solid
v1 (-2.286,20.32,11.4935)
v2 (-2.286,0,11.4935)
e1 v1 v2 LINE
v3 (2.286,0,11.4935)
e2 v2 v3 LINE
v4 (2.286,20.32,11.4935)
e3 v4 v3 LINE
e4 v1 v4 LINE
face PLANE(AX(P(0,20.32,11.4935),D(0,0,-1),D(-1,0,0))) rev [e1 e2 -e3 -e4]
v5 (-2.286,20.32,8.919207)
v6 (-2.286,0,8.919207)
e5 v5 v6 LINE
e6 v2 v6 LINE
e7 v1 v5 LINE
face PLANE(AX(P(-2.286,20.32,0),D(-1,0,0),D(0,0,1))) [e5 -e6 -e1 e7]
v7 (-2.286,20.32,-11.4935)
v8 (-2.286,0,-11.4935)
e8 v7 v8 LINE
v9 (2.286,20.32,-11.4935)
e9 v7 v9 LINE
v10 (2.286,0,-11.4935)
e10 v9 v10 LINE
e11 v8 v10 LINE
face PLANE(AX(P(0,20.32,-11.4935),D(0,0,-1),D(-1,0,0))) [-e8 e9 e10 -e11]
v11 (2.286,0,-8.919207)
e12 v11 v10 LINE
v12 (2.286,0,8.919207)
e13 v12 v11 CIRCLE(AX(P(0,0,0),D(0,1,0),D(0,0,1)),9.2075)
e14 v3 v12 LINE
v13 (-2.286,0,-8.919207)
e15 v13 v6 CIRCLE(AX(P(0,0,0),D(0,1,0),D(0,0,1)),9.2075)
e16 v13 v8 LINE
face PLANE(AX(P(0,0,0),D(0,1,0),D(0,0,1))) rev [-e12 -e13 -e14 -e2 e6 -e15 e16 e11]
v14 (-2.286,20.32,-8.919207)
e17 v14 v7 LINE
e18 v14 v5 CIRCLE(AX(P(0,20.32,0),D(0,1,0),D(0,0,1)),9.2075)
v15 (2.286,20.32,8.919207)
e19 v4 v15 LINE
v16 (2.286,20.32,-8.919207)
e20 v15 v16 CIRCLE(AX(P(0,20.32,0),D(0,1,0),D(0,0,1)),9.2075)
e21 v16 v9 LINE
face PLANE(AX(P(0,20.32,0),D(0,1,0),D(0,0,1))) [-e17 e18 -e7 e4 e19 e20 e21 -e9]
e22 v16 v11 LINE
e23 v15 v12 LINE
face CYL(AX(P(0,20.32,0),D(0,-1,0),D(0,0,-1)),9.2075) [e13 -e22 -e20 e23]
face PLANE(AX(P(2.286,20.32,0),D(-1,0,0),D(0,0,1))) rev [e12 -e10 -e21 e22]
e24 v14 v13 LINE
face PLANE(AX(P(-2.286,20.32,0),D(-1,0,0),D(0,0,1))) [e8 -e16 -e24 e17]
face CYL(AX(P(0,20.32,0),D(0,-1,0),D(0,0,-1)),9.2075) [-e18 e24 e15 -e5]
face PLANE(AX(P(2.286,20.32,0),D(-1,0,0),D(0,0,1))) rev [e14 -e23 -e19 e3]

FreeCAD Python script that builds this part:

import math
import FreeCAD as App
import Part
import Sketcher
Q = App.Units.Quantity

doc = App.newDocument("Part")
body = doc.addObject("PartDesign::Body", "Body")

sketch1 = body.newObject("Sketcher::SketchObject", "Sketch")
sketch1.AttachmentSupport = (doc.getObject("XZ_Plane"), [""])
sketch1.MapMode = "FlatFace"
sketch1.addGeometry(Part.LineSegment(App.Vector(-2.3, -11.5, 0), App.Vector(-2.3, -8.9, 0)), False)
sketch1.addGeometry(Part.ArcOfCircle(Part.Circle(App.Vector(0, 0, 0), App.Vector(0, 0, 1), 9.2), math.radians(104), math.radians(256)), False)
sketch1.addGeometry(Part.LineSegment(App.Vector(-2.3, 8.9, 0), App.Vector(-2.3, 11.5, 0)), False)
sketch1.addGeometry(Part.LineSegment(App.Vector(-2.3, 11.5, 0), App.Vector(2.3, 11.5, 0)), False)
sketch1.addGeometry(Part.LineSegment(App.Vector(2.3, 11.5, 0), App.Vector(2.3, 8.9, 0)), False)
sketch1.addGeometry(Part.ArcOfCircle(Part.Circle(App.Vector(0, 0, 0), App.Vector(0, 0, 1), 9.2), math.radians(0), math.radians(76)), False)
sketch1.addGeometry(Part.ArcOfCircle(Part.Circle(App.Vector(0, 0, 0), App.Vector(0, 0, 1), 9.2), math.radians(-76), math.radians(0)), False)
sketch1.addGeometry(Part.LineSegment(App.Vector(2.3, -8.9, 0), App.Vector(2.3, -11.5, 0)), False)
sketch1.addGeometry(Part.LineSegment(App.Vector(2.3, -11.5, 0), App.Vector(-2.3, -11.5, 0)), False)
sketch1.addConstraint(Sketcher.Constraint("Coincident", 0, 2, 1, 2))
sketch1.addConstraint(Sketcher.Constraint("Coincident", 1, 1, 2, 1))
sketch1.addConstraint(Sketcher.Constraint("Coincident", 2, 2, 3, 1))
sketch1.addConstraint(Sketcher.Constraint("Coincident", 3, 2, 4, 1))
sketch1.addConstraint(Sketcher.Constraint("Coincident", 4, 2, 5, 2))
sketch1.addConstraint(Sketcher.Constraint("Tangent", 5, 1, 6, 2))
sketch1.addConstraint(Sketcher.Constraint("Coincident", 6, 1, 7, 1))
sketch1.addConstraint(Sketcher.Constraint("Coincident", 7, 2, 8, 1))
sketch1.addConstraint(Sketcher.Constraint("Coincident", 8, 2, 0, 1))
sketch1.addConstraint(Sketcher.Constraint("Vertical", 0))
sketch1.addConstraint(Sketcher.Constraint("Vertical", 2))
sketch1.addConstraint(Sketcher.Constraint("Horizontal", 3))
sketch1.addConstraint(Sketcher.Constraint("Vertical", 4))
sketch1.addConstraint(Sketcher.Constraint("Vertical", 7))
sketch1.addConstraint(Sketcher.Constraint("Horizontal", 8))
sketch1.addConstraint(Sketcher.Constraint("Coincident", 1, 3, -1, 1))
sketch1.addConstraint(Sketcher.Constraint("Coincident", 5, 3, -1, 1))
sketch1.addConstraint(Sketcher.Constraint("Equal", 1, 5))
sketch1.addConstraint(Sketcher.Constraint("Equal", 5, 6))
sketch1.addConstraint(Sketcher.Constraint("Symmetric", 2, 2, 7, 2, -1, 1))
sketch1.addConstraint(Sketcher.Constraint("PointOnObject", 5, 1, -1))
sketch1.addConstraint(Sketcher.Constraint("Horizontal", 1, 1, 4, 2))
sketch1.addConstraint(Sketcher.Constraint("Horizontal", 0, 2, 6, 1))
sketch1.addConstraint(Sketcher.Constraint("DistanceX", 3, 1, 3, 2, Q("0.18 in")))
sketch1.addConstraint(Sketcher.Constraint("Radius", 1, Q("0.3625 in")))
sketch1.addConstraint(Sketcher.Constraint("DistanceY", -1, 1, 2, 2, Q("0.4525 in")))
pad1 = body.newObject("PartDesign::Pad", "Pad")
pad1.Profile = sketch1
pad1.Length = Q("0.8 in")
pad1.Reversed = True

doc.recompute()
